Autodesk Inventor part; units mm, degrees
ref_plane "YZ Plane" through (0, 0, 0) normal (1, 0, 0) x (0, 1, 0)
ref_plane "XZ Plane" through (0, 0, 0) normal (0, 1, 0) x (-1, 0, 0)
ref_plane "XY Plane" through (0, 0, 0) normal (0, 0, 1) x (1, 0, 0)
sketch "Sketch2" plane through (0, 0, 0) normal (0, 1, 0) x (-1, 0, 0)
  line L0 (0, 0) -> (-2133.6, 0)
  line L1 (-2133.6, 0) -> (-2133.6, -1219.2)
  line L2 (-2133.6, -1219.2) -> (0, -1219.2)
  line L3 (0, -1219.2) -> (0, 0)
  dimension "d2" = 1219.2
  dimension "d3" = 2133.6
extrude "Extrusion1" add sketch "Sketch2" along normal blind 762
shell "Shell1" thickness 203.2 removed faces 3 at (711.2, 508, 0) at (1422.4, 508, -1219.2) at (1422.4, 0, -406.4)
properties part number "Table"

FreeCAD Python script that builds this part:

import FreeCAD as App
import Part
import Sketcher
from FreeCAD import Vector
Q = App.Units.Quantity


def faces_at(feature, points):
    """Names of the faces that lie closest to the given points."""
    faces = feature.Shape.Faces
    near = lambda p: min(range(len(faces)), key=lambda i: faces[i].distToShape(Part.Vertex(*p))[0])
    return sorted({f"Face{near(p) + 1}" for p in points})

doc = App.newDocument("Part")
body = doc.addObject("PartDesign::Body", "Body")

# Sketch on XZ plane
sketch1 = doc.addObject("Sketcher::SketchObject", "Sketch")
body.addObject(sketch1)
sketch1.AttachmentSupport = (doc.XZ_Plane, [""])
sketch1.MapMode = "FlatFace"
sketch1.addGeometry([
    Part.LineSegment(Vector(0, -1219, 0), Vector(0, 0, 0)),
    Part.LineSegment(Vector(0, 0, 0), Vector(2134, 0, 0)),
    Part.LineSegment(Vector(2134, 0, 0), Vector(2134, -1219, 0)),
    Part.LineSegment(Vector(2134, -1219, 0), Vector(0, -1219, 0)),
], False)
sketch1.addConstraint([
    Sketcher.Constraint("Coincident", 0, 2, 1, 1),
    Sketcher.Constraint("Coincident", 1, 2, 2, 1),
    Sketcher.Constraint("Coincident", 2, 2, 3, 1),
    Sketcher.Constraint("Coincident", 3, 2, 0, 1),
    Sketcher.Constraint("Vertical", 0),
    Sketcher.Constraint("Horizontal", 1),
    Sketcher.Constraint("Vertical", 2),
    Sketcher.Constraint("Horizontal", 3),
    Sketcher.Constraint("Coincident", 0, 2, -1, 1),
    Sketcher.Constraint("DistanceX", 1, 1, 1, 2, Q("84 in")),
    Sketcher.Constraint("DistanceY", 0, 1, 0, 2, Q("48 in")),
])
pad1 = doc.addObject("PartDesign::Pad", "Pad")
body.addObject(pad1)
pad1.Profile = sketch1
pad1.Length = Q("30 in")
pad1.Reversed = True
doc.recompute()

thickness = doc.addObject("PartDesign::Thickness", "Thickness")
body.addObject(thickness)
thickness.Base = (pad1, faces_at(pad1, [(711.2, 508, 0), (1422.4, 508, -1219.2), (1422.4, 0, -406.4)]))
thickness.Value = Q("8 in")
thickness.Reversed = True
thickness.Join = "Intersection"

doc.recompute()
